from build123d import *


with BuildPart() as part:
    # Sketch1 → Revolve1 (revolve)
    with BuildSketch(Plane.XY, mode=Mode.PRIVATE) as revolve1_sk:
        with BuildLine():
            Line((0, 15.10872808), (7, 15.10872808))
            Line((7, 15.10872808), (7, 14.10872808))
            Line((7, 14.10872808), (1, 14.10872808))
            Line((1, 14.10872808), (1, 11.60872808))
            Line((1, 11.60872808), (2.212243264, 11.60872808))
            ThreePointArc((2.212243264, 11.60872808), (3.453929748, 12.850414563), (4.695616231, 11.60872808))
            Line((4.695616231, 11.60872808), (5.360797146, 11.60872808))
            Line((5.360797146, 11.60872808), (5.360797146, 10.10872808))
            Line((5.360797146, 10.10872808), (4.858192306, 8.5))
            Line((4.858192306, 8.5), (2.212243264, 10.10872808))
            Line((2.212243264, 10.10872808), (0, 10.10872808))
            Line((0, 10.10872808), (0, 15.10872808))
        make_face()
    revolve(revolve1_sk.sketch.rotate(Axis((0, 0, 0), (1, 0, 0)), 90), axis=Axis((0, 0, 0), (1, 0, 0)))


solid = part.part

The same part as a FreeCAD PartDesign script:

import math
import FreeCAD as App
import Part
import Sketcher
from FreeCAD import Vector
Q = App.Units.Quantity

doc = App.newDocument("Part")
body = doc.addObject("PartDesign::Body", "Body")

sketch1 = body.newObject("Sketcher::SketchObject", "Sketch")
sketch1.AttachmentSupport = (doc.getObject("XY_Plane"), [""])
sketch1.MapMode = "FlatFace"
sketch1.addGeometry([
    Part.LineSegment(Vector(7, 15.1, 0), Vector(0, 15.1, 0)),
    Part.LineSegment(Vector(0, 15.1, 0), Vector(0, 10.1, 0)),
    Part.LineSegment(Vector(0, 10.1, 0), Vector(2.2, 10.1, 0)),
    Part.LineSegment(Vector(2.2, 10.1, 0), Vector(4.9, 8.5, 0)),
    Part.LineSegment(Vector(4.9, 8.5, 0), Vector(5.4, 10.1, 0)),
    Part.LineSegment(Vector(5.4, 10.1, 0), Vector(5.4, 11.6, 0)),
    Part.LineSegment(Vector(5.4, 11.6, 0), Vector(4.7, 11.6, 0)),
    Part.ArcOfCircle(Part.Circle(Vector(3.5, 11.6, 0), Vector(0, 0, 1), 1.2), math.radians(0), math.radians(180)),
    Part.LineSegment(Vector(2.2, 11.6, 0), Vector(1, 11.6, 0)),
    Part.LineSegment(Vector(1, 11.6, 0), Vector(1, 14.1, 0)),
    Part.LineSegment(Vector(1, 14.1, 0), Vector(7, 14.1, 0)),
    Part.LineSegment(Vector(7, 14.1, 0), Vector(7, 15.1, 0)),
], False)
sketch1.addConstraint([
    Sketcher.Constraint("Coincident", 0, 2, 1, 1),
    Sketcher.Constraint("Coincident", 1, 2, 2, 1),
    Sketcher.Constraint("Coincident", 2, 2, 3, 1),
    Sketcher.Constraint("Coincident", 3, 2, 4, 1),
    Sketcher.Constraint("Coincident", 4, 2, 5, 1),
    Sketcher.Constraint("Coincident", 5, 2, 6, 1),
    Sketcher.Constraint("Coincident", 6, 2, 7, 1),
    Sketcher.Constraint("Coincident", 7, 2, 8, 1),
    Sketcher.Constraint("Coincident", 8, 2, 9, 1),
    Sketcher.Constraint("Coincident", 9, 2, 10, 1),
    Sketcher.Constraint("Coincident", 10, 2, 11, 1),
    Sketcher.Constraint("Coincident", 11, 2, 0, 1),
    Sketcher.Constraint("Horizontal", 0),
    Sketcher.Constraint("Vertical", 1),
    Sketcher.Constraint("Horizontal", 2),
    Sketcher.Constraint("Vertical", 5),
    Sketcher.Constraint("Horizontal", 6),
    Sketcher.Constraint("Horizontal", 8),
    Sketcher.Constraint("Vertical", 9),
    Sketcher.Constraint("Horizontal", 10),
    Sketcher.Constraint("Vertical", 11),
    Sketcher.Constraint("PointOnObject", 0, 2, -2),
    Sketcher.Constraint("Horizontal", 2, 2, 4, 2),
    Sketcher.Constraint("Horizontal", 7, 3, 5, 2),
    Sketcher.Constraint("Horizontal", 6, 2, 7, 2),
    Sketcher.Constraint("Vertical", 2, 2, 7, 2),
    Sketcher.Constraint("DistanceX", 0, 2, 0, 1, Q("7 mm")),
    Sketcher.Constraint("DistanceX", 10, 1, 10, 2, Q("6 mm")),
    Sketcher.Constraint("DistanceY", 1, 2, 1, 1, Q("5 mm")),
    Sketcher.Constraint("DistanceY", 11, 1, 11, 2, Q("1 mm")),
    Sketcher.Constraint("DistanceY", 5, 1, 5, 2, Q("1.5 mm")),
    Sketcher.Constraint("DistanceY", -1, 1, 3, 2, Q("8.5 mm")),
    Sketcher.Constraint("Radius", 7, Q("1.241686 mm")),
    Sketcher.Constraint("DistanceX", 6, 2, 6, 1, Q("0.665181 mm")),
    Sketcher.Constraint("Distance", 3, Q("3.09662 mm")),
    Sketcher.Constraint("DistanceX", 2, 1, 2, 2, Q("2.212243 mm")),
    Sketcher.Constraint("DistanceY", -1, 1, 7, 3, Q("11.608728 mm")),
])
revolution = body.newObject("PartDesign::Revolution", "Revolution")
revolution.Profile = sketch1
revolution.ReferenceAxis = (sketch1, ["H_Axis"])
revolution.Angle = 360

doc.recompute()
